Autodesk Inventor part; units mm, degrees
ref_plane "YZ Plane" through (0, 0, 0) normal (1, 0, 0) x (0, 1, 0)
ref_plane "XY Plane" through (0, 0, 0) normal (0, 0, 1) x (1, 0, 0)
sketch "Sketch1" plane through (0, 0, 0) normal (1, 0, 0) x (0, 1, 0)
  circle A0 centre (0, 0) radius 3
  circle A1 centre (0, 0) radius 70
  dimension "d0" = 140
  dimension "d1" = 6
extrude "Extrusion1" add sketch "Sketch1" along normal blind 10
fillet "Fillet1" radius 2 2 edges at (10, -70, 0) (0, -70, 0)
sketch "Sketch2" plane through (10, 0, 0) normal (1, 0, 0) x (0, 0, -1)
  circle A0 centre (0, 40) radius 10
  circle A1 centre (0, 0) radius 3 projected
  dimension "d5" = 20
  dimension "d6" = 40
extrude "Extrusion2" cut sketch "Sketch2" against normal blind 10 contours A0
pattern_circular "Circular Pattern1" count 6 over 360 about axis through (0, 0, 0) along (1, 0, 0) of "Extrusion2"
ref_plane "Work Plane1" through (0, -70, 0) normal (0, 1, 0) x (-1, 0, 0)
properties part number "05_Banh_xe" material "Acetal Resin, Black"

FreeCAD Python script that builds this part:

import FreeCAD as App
import Part
import Sketcher

V = App.Vector
Q = App.Units.Quantity


def edges_at(feature, points):
    """Names of the edges that pass closest to the given points."""
    edges = feature.Shape.Edges
    near = lambda p: min(range(len(edges)), key=lambda i: edges[i].distToShape(Part.Vertex(*p))[0])
    return sorted({f"Edge{near(p) + 1}" for p in points})

doc = App.newDocument("Part")
body = doc.addObject("PartDesign::Body", "Body")

sketch1 = body.newObject("Sketcher::SketchObject", "Sketch")
sketch1.AttachmentSupport = (doc.getObject("YZ_Plane"), [""])
sketch1.MapMode = "FlatFace"
sketch1.addGeometry([
    Part.Circle(V(0, 0, 0), V(0, 0, 1), 70),
    Part.Circle(V(0, 0, 0), V(0, 0, 1), 3),
], False)
sketch1.addConstraint([
    Sketcher.Constraint("Coincident", 0, 3, -1, 1),
    Sketcher.Constraint("Coincident", 1, 3, -1, 1),
    Sketcher.Constraint("Diameter", 0, Q("140 mm")),
    Sketcher.Constraint("Diameter", 1, Q("6 mm")),
])
pad1 = body.newObject("PartDesign::Pad", "Pad")
pad1.Profile = sketch1
pad1.Length = 10
doc.recompute()

fillet = body.newObject("PartDesign::Fillet", "Fillet")
fillet.Base = (pad1, edges_at(pad1, [(10, -70, 0), (0, -70, 0)]))
fillet.Radius = 2

sketch2 = body.newObject("Sketcher::SketchObject", "Sketch001")
sketch2.AttachmentSupport = (doc.getObject("YZ_Plane"), [""])
sketch2.MapMode = "FlatFace"
sketch2.AttachmentOffset = App.Placement(V(0, 0, 10), App.Rotation())
sketch2.addGeometry(Part.Circle(V(40, 0, 0), V(0, 0, 1), 10), False)
sketch2.addConstraint([
    Sketcher.Constraint("PointOnObject", 0, 3, -1),
    Sketcher.Constraint("Diameter", 0, Q("20 mm")),
    Sketcher.Constraint("DistanceX", -1, 1, 0, 3, Q("40 mm")),
])
pocket1 = body.newObject("PartDesign::Pocket", "Pocket")
pocket1.Profile = sketch2
pocket1.Length = 10
doc.recompute()

polarpattern = body.newObject("PartDesign::PolarPattern", "PolarPattern")
polarpattern.Originals = [pocket1]
polarpattern.Axis = (doc.getObject("X_Axis"), [""])
polarpattern.Angle = 360
polarpattern.Occurrences = 6
body.Tip = polarpattern

doc.recompute()
